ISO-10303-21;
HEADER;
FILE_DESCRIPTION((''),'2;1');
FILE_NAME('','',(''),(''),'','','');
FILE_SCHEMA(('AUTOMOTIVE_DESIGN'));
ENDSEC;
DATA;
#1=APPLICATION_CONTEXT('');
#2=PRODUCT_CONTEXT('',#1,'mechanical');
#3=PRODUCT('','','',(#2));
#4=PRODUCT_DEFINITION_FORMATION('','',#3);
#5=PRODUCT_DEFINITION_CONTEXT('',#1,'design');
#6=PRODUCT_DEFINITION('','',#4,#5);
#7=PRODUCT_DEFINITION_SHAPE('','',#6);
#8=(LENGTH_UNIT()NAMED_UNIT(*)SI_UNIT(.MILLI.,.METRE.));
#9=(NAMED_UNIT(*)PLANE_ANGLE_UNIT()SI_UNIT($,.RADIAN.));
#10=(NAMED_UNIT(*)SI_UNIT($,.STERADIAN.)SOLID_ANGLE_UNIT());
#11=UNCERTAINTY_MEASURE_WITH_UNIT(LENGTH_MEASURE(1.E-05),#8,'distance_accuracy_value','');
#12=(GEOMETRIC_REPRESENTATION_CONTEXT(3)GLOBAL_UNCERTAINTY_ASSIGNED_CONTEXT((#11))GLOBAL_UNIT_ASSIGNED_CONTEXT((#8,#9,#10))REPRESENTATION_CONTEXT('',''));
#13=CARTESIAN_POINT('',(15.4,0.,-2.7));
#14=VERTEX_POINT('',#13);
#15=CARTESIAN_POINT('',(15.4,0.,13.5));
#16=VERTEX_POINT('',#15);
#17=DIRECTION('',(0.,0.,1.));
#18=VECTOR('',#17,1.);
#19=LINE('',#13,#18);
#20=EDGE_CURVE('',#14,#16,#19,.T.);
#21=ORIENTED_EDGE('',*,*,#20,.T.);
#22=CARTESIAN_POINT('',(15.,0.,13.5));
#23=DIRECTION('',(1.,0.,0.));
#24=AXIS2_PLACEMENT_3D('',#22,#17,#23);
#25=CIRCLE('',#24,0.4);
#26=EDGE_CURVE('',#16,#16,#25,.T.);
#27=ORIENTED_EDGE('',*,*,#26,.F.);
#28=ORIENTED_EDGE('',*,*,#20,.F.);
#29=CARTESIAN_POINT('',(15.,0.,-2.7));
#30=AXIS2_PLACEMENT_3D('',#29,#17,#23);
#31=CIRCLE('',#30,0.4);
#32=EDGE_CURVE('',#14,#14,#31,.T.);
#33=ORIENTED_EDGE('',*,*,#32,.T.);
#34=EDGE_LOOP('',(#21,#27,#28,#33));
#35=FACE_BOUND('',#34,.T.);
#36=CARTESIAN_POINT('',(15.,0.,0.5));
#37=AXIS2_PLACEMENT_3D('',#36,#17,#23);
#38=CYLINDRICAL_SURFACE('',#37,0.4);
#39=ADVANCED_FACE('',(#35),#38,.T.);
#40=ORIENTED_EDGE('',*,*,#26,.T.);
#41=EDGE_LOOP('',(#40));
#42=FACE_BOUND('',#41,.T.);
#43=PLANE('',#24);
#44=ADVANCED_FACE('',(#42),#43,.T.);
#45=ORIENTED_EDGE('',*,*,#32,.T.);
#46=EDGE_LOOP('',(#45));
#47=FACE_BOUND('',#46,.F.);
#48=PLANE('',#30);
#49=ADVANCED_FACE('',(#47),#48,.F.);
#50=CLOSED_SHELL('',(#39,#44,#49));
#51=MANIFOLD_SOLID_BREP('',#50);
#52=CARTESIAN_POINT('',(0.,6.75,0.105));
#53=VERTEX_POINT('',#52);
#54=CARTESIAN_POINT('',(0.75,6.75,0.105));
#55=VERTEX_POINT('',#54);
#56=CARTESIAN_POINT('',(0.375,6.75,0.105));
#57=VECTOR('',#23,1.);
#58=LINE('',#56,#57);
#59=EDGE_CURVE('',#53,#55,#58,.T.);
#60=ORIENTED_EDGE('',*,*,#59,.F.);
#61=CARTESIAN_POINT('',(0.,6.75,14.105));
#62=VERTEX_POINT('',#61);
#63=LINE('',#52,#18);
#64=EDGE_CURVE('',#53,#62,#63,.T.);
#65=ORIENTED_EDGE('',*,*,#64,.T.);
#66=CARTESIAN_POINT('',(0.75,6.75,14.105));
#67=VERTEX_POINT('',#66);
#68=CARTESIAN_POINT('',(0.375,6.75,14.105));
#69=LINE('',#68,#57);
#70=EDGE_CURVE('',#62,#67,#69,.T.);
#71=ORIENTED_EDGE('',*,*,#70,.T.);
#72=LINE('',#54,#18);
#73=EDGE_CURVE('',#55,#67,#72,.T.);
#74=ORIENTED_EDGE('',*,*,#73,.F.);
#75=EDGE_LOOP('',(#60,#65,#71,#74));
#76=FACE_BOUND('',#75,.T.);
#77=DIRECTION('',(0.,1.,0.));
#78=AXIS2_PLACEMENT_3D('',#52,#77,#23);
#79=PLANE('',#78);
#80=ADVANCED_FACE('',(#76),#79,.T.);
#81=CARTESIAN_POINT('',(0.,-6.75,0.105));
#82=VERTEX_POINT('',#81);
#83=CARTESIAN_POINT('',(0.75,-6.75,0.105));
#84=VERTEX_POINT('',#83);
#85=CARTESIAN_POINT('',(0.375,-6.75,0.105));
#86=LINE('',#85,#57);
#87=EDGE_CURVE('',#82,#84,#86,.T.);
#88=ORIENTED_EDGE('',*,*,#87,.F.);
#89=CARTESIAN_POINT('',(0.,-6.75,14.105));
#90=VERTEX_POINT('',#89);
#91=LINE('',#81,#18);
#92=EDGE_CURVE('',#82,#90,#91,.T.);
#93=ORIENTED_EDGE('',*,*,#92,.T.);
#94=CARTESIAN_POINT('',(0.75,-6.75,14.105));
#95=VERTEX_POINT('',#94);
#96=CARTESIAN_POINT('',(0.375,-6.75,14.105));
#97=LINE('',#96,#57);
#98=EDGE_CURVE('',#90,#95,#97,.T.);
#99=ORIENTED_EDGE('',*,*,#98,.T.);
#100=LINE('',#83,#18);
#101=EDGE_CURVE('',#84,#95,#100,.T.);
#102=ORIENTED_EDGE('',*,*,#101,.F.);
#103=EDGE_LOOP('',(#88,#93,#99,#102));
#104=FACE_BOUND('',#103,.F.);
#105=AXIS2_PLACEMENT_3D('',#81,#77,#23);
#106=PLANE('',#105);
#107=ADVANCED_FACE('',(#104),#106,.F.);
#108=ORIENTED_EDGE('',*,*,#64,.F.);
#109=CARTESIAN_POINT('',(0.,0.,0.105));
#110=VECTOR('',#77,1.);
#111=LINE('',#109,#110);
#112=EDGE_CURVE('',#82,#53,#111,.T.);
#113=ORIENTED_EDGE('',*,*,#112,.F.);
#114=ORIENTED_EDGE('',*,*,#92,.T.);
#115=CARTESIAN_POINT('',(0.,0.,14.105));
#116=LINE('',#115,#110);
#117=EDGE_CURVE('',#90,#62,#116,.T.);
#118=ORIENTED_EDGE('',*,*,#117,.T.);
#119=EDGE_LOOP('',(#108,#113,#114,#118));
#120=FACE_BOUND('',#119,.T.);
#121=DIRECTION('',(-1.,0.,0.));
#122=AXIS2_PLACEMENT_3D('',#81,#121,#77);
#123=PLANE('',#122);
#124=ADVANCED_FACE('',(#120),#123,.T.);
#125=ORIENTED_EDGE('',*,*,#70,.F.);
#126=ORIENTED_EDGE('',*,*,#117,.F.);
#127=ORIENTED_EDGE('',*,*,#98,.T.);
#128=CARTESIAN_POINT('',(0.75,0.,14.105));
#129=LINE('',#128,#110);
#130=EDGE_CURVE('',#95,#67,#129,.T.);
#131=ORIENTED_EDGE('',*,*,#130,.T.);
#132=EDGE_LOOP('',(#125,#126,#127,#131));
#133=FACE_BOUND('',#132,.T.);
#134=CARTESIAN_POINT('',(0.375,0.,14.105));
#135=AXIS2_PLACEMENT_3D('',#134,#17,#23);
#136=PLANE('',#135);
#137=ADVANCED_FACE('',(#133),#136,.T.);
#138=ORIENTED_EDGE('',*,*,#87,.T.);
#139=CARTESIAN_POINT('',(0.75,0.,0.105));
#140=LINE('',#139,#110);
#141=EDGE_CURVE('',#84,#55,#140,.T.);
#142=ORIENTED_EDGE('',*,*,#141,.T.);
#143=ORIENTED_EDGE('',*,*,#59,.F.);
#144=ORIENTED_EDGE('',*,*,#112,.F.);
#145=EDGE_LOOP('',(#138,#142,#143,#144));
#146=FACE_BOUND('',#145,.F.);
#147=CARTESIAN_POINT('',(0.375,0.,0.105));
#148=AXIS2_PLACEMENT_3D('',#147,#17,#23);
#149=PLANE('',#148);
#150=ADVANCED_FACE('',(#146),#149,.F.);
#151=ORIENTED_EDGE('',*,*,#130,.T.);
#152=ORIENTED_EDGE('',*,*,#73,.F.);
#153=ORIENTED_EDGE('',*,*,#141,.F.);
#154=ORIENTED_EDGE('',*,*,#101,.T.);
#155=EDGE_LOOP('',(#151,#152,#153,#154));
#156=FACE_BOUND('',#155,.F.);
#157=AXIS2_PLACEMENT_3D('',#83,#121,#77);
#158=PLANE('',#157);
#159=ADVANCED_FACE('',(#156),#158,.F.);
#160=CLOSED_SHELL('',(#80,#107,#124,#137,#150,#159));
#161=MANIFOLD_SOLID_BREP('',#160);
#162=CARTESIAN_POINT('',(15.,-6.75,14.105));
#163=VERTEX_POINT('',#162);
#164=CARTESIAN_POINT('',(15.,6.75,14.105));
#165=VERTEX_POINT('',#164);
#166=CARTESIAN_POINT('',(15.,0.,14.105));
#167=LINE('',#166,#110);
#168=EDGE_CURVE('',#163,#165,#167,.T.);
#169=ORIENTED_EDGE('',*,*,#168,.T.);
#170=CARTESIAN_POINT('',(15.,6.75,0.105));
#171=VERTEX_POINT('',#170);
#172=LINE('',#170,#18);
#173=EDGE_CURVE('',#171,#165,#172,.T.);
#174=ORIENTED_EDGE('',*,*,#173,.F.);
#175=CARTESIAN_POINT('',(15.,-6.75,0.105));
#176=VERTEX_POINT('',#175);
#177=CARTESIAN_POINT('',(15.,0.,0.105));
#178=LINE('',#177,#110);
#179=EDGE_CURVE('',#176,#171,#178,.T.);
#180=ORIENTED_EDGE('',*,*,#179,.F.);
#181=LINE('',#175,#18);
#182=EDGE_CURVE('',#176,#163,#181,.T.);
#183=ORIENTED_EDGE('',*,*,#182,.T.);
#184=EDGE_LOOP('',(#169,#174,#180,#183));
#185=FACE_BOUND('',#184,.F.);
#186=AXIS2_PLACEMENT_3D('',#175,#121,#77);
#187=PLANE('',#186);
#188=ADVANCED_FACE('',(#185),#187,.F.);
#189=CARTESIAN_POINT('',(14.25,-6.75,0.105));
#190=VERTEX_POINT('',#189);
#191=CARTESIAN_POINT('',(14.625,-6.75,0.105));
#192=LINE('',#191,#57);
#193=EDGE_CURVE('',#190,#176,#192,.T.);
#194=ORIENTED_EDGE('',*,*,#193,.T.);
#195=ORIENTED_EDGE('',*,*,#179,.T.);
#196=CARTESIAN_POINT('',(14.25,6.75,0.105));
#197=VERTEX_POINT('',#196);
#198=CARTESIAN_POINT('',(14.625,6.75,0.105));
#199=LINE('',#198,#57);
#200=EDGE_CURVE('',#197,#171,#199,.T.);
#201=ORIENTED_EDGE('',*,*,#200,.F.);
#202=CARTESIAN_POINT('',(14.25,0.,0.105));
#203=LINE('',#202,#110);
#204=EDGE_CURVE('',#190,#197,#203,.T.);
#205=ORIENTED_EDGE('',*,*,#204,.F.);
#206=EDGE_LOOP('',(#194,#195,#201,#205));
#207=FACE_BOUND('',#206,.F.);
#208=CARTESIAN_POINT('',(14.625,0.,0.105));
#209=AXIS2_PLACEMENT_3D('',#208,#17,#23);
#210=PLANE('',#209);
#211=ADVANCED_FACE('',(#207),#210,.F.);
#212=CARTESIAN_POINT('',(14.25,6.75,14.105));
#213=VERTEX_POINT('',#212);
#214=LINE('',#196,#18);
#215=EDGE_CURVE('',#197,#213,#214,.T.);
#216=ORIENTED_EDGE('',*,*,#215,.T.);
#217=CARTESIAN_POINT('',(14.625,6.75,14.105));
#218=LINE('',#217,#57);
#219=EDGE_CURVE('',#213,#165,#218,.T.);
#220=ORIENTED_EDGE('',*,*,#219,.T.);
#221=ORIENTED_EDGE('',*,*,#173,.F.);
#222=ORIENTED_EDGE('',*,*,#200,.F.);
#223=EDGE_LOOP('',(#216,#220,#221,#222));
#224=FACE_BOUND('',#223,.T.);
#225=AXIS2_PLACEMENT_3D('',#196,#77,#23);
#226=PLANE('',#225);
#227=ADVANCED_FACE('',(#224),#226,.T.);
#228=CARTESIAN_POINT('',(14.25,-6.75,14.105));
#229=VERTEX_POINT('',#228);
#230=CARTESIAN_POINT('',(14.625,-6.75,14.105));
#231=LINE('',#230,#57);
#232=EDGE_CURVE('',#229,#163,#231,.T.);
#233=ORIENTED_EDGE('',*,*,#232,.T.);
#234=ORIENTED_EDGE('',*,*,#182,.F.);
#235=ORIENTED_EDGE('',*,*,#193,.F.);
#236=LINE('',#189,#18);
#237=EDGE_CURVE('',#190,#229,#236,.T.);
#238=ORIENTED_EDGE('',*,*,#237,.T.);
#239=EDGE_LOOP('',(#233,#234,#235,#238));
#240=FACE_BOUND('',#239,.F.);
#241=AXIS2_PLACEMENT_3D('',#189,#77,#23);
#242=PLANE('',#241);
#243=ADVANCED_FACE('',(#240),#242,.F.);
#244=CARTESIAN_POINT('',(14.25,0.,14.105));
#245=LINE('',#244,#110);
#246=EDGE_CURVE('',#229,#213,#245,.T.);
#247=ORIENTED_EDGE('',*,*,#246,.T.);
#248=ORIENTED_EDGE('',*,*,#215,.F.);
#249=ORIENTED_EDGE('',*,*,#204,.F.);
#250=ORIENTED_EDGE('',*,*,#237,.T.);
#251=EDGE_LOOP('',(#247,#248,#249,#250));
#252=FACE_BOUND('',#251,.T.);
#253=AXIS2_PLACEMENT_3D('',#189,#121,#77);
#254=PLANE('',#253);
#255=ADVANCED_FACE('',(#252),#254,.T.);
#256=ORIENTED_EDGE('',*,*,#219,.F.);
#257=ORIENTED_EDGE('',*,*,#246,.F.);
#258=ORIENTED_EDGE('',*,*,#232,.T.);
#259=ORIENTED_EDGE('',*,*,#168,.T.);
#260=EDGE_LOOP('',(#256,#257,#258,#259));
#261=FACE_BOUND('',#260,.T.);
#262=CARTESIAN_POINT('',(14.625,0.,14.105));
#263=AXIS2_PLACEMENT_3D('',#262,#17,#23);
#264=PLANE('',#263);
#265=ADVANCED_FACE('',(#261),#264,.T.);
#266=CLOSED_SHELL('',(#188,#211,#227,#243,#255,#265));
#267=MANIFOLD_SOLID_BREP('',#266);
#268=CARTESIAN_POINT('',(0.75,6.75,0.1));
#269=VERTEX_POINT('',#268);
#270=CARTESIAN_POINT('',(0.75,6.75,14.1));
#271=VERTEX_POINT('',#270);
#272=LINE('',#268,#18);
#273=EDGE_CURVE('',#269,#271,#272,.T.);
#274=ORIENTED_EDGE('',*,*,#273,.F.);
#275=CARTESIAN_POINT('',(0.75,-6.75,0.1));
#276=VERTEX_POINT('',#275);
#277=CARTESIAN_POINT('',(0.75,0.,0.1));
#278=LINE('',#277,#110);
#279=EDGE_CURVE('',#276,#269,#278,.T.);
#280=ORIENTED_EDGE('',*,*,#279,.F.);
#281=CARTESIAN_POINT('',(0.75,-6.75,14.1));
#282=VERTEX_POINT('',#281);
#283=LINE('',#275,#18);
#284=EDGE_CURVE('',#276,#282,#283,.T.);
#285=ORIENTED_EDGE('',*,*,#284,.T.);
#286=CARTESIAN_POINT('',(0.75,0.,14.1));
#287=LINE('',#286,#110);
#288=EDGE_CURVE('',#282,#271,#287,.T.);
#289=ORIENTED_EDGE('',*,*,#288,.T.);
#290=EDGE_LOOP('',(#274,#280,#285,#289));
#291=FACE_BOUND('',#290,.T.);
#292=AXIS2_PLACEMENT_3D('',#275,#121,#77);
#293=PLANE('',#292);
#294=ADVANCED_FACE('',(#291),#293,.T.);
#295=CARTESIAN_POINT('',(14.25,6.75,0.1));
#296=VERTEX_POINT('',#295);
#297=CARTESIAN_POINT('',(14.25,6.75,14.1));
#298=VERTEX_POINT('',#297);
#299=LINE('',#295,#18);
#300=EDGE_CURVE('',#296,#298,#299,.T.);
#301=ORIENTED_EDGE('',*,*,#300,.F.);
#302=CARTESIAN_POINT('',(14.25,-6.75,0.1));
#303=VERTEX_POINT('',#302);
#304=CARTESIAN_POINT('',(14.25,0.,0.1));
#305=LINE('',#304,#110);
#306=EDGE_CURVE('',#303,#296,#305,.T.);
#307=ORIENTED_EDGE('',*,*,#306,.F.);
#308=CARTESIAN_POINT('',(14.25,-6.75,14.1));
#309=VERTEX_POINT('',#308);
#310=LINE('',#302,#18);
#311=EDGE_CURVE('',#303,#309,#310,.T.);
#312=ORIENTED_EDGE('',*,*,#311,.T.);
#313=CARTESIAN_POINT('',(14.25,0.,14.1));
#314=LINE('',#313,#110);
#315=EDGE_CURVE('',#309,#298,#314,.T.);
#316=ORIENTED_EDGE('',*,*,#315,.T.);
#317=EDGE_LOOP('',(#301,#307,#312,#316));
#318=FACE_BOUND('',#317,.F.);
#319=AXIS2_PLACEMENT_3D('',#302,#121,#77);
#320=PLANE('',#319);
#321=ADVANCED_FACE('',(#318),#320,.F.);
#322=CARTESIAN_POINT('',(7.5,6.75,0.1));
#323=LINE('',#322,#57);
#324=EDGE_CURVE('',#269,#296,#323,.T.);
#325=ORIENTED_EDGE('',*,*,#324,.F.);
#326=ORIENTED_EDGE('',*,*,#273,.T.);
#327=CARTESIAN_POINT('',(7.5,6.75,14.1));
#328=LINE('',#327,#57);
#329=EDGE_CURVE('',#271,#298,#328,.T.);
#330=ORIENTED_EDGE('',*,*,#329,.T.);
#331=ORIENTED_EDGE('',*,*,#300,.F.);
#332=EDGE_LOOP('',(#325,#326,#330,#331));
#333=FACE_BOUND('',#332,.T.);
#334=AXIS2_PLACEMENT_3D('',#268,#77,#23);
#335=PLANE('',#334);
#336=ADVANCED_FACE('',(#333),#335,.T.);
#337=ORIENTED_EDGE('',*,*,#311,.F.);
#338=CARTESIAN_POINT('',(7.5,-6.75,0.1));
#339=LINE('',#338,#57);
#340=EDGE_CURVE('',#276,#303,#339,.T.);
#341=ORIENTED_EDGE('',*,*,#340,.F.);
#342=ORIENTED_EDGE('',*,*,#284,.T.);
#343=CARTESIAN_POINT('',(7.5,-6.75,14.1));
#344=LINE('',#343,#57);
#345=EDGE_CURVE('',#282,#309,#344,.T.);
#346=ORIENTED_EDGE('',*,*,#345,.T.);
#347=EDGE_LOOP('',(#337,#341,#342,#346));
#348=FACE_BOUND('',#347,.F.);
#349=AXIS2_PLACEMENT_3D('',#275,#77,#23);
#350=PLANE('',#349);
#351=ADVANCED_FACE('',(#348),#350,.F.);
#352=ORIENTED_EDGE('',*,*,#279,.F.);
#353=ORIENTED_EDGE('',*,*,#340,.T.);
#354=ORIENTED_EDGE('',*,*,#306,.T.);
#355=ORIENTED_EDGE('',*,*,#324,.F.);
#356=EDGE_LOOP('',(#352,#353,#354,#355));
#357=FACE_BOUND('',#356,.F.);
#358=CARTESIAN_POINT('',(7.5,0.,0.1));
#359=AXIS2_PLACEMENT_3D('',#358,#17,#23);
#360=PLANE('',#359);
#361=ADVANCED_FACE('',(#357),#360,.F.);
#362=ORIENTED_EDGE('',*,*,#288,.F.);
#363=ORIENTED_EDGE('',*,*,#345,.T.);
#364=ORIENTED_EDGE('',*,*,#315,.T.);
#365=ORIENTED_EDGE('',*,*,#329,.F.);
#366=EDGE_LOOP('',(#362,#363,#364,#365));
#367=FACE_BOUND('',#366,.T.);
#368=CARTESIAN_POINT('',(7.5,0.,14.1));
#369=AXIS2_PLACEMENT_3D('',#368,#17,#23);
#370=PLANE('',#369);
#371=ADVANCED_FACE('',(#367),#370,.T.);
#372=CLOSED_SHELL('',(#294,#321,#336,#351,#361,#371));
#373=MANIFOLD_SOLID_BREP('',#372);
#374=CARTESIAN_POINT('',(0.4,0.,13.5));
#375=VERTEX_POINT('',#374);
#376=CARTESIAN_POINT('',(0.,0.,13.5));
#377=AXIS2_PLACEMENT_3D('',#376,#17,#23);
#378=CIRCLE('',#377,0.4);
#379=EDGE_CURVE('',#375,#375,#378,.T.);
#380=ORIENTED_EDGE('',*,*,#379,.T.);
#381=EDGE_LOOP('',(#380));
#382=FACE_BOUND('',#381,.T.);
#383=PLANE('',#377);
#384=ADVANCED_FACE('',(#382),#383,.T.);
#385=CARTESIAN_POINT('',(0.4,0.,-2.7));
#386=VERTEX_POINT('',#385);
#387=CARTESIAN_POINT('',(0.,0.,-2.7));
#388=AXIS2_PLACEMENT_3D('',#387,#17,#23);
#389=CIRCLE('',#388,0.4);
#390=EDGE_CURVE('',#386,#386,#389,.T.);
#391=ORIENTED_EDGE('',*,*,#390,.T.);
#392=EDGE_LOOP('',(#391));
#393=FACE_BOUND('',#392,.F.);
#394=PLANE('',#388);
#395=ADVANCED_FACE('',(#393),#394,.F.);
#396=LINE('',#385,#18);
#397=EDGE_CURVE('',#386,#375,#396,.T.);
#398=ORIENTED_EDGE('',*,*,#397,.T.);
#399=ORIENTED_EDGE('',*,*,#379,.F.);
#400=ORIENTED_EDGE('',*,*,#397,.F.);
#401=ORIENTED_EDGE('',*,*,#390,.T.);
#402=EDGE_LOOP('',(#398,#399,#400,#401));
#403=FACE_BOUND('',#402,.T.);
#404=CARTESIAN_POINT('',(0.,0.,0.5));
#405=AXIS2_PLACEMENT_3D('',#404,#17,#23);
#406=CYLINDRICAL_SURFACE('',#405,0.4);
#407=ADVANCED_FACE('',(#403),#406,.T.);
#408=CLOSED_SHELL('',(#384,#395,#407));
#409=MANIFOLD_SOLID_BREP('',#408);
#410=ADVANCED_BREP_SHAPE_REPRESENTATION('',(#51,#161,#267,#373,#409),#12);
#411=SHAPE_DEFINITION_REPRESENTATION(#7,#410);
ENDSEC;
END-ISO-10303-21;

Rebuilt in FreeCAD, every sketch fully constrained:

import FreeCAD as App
import Part
import Sketcher

V = App.Vector


def add_polygon(sketch, points):
    """Adds a closed chain of lines whose ends are joined by coincident constraints."""
    first, n = sketch.GeometryCount, len(points)
    for a, b in zip(points, points[1:] + points[:1]):
        sketch.addGeometry(Part.LineSegment(App.Vector(*a, 0), App.Vector(*b, 0)), False)
    for i in range(n):
        sketch.addConstraint(Sketcher.Constraint("Coincident", first + i, 2, first + (i + 1) % n, 1))

doc = App.newDocument("Part")
body = doc.addObject("PartDesign::Body", "Body")

# Sketch on XY plane
sketch1 = body.newObject("Sketcher::SketchObject", "Sketch")
sketch1.AttachmentSupport = (doc.getObject("XY_Plane"), [""])
sketch1.MapMode = "FlatFace"
sketch1.AttachmentOffset = App.Placement(V(0, 0, 0.1), App.Rotation())
add_polygon(sketch1, [(1, 7), (1, -7), (14, -7), (14, 7)])  # lines 0-3
sketch1.addConstraint(Sketcher.Constraint("Vertical", 0))
sketch1.addConstraint(Sketcher.Constraint("Horizontal", 1))
sketch1.addConstraint(Sketcher.Constraint("Vertical", 2))
sketch1.addConstraint(Sketcher.Constraint("Horizontal", 3))
sketch1.addConstraint(Sketcher.Constraint("Equal", 3, 0))
sketch1.addConstraint(Sketcher.Constraint("DistanceX", 1, 1, 1, 2, 13.5))
sketch1.addConstraint(Sketcher.Constraint("DistanceX", -1, 1, 0, 2, 0.75))
sketch1.addConstraint(Sketcher.Constraint("DistanceY", 0, 2, -1, 1, 6.75))
pad1 = body.newObject("PartDesign::Pad", "Pad")
pad1.Profile = sketch1
pad1.Length = 14
body2 = doc.addObject("PartDesign::Body", "Body001")
body2.AllowCompound = True

# Sketch on XY plane
sketch2 = body2.newObject("Sketcher::SketchObject", "Sketch001")
sketch2.AttachmentSupport = (doc.getObject("XY_Plane001"), [""])
sketch2.MapMode = "FlatFace"
sketch2.AttachmentOffset = App.Placement(V(0, 0, 0.5), App.Rotation())
sketch2.addGeometry(Part.Circle(V(0, 0, 0), V(0, 0, 1), 0.4), False)
sketch2.addGeometry(Part.Circle(V(15, 0, 0), V(0, 0, 1), 0.4), False)
sketch2.addConstraint(Sketcher.Constraint("Coincident", 0, 3, -1, 1))
sketch2.addConstraint(Sketcher.Constraint("Equal", 0, 1))
sketch2.addConstraint(Sketcher.Constraint("PointOnObject", 1, 3, -1))
sketch2.addConstraint(Sketcher.Constraint("Diameter", 0, 0.8))
sketch2.addConstraint(Sketcher.Constraint("DistanceX", -1, 1, 1, 3, 15.0))
pad2 = body2.newObject("PartDesign::Pad", "Pad001")
pad2.Profile = sketch2
pad2.Type = "TwoLengths"
pad2.Length = 13
pad2.Length2 = 3.2
body3 = doc.addObject("PartDesign::Body", "Body002")
body3.AllowCompound = True

# Sketch on XY plane
sketch3 = body3.newObject("Sketcher::SketchObject", "Sketch002")
sketch3.AttachmentSupport = (doc.getObject("XY_Plane002"), [""])
sketch3.MapMode = "FlatFace"
sketch3.AttachmentOffset = App.Placement(V(0, 0, 0.105), App.Rotation())
add_polygon(sketch3, [(0, 6.8), (0, -6.8), (0.8, -6.8), (0.8, 6.8)])  # lines 0-3
add_polygon(sketch3, [(14.2, 6.8), (14.2, -6.8), (15, -6.8), (15, 6.8)])  # lines 4-7
sketch3.addConstraint(Sketcher.Constraint("Vertical", 0))
sketch3.addConstraint(Sketcher.Constraint("Horizontal", 1))
sketch3.addConstraint(Sketcher.Constraint("Vertical", 2))
sketch3.addConstraint(Sketcher.Constraint("Horizontal", 3))
sketch3.addConstraint(Sketcher.Constraint("Vertical", 4))
sketch3.addConstraint(Sketcher.Constraint("Horizontal", 5))
sketch3.addConstraint(Sketcher.Constraint("Vertical", 6))
sketch3.addConstraint(Sketcher.Constraint("Horizontal", 7))
sketch3.addConstraint(Sketcher.Constraint("Symmetric", 0, 2, 3, 2, -1, 1))
sketch3.addConstraint(Sketcher.Constraint("Horizontal", 1, 2, 4, 2))
sketch3.addConstraint(Sketcher.Constraint("Horizontal", 3, 2, 6, 2))
sketch3.addConstraint(Sketcher.Constraint("Equal", 3, 5))
sketch3.addConstraint(Sketcher.Constraint("DistanceY", 0, 2, 0, 1, 13.5))
sketch3.addConstraint(Sketcher.Constraint("DistanceX", -1, 1, 5, 2, 15.0))
sketch3.addConstraint(Sketcher.Constraint("DistanceX", 1, 1, 1, 2, 0.75))
pad3 = body3.newObject("PartDesign::Pad", "Pad002")
pad3.Profile = sketch3
pad3.Length = 14

doc.recompute()
